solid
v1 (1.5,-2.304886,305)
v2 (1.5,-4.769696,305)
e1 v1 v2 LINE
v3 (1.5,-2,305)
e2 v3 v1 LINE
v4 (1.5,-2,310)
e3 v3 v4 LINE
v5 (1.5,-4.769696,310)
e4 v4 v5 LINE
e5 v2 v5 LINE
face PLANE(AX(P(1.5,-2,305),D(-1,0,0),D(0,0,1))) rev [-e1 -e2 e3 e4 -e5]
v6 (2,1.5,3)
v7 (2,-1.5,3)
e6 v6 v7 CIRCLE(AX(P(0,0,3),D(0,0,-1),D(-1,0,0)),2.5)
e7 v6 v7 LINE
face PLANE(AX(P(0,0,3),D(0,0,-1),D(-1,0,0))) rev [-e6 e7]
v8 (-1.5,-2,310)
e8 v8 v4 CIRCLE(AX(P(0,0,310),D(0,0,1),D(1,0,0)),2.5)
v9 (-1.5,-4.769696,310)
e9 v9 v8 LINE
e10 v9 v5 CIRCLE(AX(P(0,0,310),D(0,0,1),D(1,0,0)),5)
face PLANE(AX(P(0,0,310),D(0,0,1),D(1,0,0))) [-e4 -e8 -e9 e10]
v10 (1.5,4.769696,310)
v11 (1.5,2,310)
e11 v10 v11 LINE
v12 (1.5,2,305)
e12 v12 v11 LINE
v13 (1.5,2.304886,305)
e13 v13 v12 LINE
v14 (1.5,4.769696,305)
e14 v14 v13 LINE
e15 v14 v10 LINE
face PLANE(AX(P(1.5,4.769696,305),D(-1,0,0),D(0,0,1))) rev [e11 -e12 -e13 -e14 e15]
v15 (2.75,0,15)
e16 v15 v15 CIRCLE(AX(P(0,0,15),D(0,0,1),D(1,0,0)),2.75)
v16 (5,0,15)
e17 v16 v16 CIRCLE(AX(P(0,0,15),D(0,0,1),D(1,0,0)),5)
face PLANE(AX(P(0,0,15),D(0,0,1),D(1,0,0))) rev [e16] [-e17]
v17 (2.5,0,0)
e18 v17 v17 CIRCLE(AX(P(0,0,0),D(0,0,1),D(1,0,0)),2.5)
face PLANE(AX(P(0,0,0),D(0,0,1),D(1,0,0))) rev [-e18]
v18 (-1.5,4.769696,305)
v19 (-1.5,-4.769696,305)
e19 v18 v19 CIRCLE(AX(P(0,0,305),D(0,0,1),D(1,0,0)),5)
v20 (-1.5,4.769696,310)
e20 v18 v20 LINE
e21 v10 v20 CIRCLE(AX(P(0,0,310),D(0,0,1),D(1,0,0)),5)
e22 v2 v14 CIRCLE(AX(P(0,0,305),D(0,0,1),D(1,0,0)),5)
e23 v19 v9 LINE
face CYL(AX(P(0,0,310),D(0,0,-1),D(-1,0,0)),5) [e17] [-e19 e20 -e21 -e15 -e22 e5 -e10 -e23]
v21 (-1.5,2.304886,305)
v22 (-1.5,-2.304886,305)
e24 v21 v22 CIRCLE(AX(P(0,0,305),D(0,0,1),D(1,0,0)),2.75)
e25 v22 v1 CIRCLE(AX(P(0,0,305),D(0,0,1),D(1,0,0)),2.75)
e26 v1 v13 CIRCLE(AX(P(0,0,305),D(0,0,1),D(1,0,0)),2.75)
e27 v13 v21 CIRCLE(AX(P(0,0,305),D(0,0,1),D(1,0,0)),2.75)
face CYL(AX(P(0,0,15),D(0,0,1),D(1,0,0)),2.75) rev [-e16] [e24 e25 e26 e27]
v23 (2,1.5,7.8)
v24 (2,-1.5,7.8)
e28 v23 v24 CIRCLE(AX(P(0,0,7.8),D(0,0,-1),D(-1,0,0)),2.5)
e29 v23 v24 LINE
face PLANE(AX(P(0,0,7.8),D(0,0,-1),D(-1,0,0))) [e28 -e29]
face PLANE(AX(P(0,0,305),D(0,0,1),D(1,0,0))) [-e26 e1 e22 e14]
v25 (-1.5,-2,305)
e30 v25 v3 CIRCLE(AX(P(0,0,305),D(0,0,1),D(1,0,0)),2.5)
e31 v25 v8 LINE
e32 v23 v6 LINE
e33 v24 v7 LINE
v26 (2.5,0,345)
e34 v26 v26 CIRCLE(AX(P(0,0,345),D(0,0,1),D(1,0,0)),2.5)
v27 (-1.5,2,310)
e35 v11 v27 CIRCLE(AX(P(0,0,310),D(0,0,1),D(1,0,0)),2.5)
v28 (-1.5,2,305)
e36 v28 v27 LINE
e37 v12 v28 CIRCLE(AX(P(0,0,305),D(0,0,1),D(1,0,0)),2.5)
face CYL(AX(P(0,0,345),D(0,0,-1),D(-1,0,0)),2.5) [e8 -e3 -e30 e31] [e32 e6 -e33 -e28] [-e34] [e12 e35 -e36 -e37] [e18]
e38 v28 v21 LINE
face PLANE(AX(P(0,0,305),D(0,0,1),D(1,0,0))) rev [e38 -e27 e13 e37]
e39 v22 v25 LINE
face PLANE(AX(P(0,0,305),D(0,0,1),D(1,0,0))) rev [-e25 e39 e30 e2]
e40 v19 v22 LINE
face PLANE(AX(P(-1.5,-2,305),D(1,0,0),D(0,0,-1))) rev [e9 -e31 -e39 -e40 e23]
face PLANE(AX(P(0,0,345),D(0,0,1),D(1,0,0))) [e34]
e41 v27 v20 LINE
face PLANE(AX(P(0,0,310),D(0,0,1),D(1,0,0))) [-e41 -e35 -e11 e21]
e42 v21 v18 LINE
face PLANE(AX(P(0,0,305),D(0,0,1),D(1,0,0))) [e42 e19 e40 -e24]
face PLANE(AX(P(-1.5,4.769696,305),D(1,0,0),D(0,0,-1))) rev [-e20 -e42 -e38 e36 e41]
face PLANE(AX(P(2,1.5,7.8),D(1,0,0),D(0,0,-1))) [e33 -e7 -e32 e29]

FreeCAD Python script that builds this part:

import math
import FreeCAD as App
import Part
import Sketcher
Q = App.Units.Quantity

doc = App.newDocument("Part")
params = doc.addObject("Spreadsheet::Sheet", "Params")
for row, (alias, value) in enumerate([
    ("sketch1_diameter", "5 mm"),
    ("pad1_length", "345 mm"),
    ("sketch2_radius", "2.5 mm"),
    ("sketch2_height", "3 mm"),
    ("pocket1_length", "4.8 mm"),
    ("sketch3_diameter", "10 mm"),
    ("sketch3_diameter2", "5.5 mm"),
    ("pad2_length", "290 mm"),
    ("sketch4_diameter", "10 mm"),
    ("pad3_length", "5 mm"),
    ("sketch5_radius", "5 mm"),
    ("sketch5_radius2", "2.5 mm"),
    ("pocket2_length", "5 mm"),
], start=1):
    params.set(f"A{row}", alias)
    params.set(f"B{row}", "=" + value)
    params.setAlias(f"B{row}", alias)

body = doc.addObject("PartDesign::Body", "Body")

# Sketch on XY plane
sketch1 = body.newObject("Sketcher::SketchObject", "Sketch")
sketch1.AttachmentSupport = (doc.getObject("XY_Plane"), [""])
sketch1.MapMode = "FlatFace"
sketch1.addGeometry(Part.Circle(App.Vector(0, 0, 0), App.Vector(0, 0, 1), 2.5), False)
sketch1.addConstraint(Sketcher.Constraint("Coincident", 0, 3, -1, 1))
sketch1.addConstraint(Sketcher.Constraint("Diameter", 0, Q("5 mm")))
sketch1.setExpression("Constraints[1]", "Params.sketch1_diameter")
pad1 = body.newObject("PartDesign::Pad", "Pad")
pad1.Profile = sketch1
pad1.setExpression("Length", "Params.pad1_length")

# Sketch on XY plane
sketch2 = body.newObject("Sketcher::SketchObject", "Sketch001")
sketch2.AttachmentSupport = (doc.getObject("XY_Plane"), [""])
sketch2.MapMode = "FlatFace"
sketch2.AttachmentOffset = App.Placement(App.Vector(0, 0, 3), App.Rotation())
sketch2.addGeometry(Part.LineSegment(App.Vector(2, -1.5, 0), App.Vector(2, 1.5, 0)), False)
sketch2.addGeometry(Part.ArcOfCircle(Part.Circle(App.Vector(0, 0, 0), App.Vector(0, 0, 1), 2.5), math.radians(-37), math.radians(37)), False)
sketch2.addConstraint(Sketcher.Constraint("Coincident", 0, 1, 1, 1))
sketch2.addConstraint(Sketcher.Constraint("Coincident", 1, 2, 0, 2))
sketch2.addConstraint(Sketcher.Constraint("Vertical", 0))
sketch2.addConstraint(Sketcher.Constraint("Coincident", 1, 3, -1, 1))
sketch2.addConstraint(Sketcher.Constraint("Radius", 1, Q("2.5 mm")))
sketch2.addConstraint(Sketcher.Constraint("DistanceY", 0, 1, 0, 2, Q("3 mm")))
sketch2.setExpression("Constraints[4]", "Params.sketch2_radius")
sketch2.setExpression("Constraints[5]", "Params.sketch2_height")
pocket1 = body.newObject("PartDesign::Pocket", "Pocket")
pocket1.Profile = sketch2
pocket1.setExpression("Length", "Params.pocket1_length")
pocket1.Reversed = True
body2 = doc.addObject("PartDesign::Body", "Body001")

# Sketch on XY plane
sketch3 = body2.newObject("Sketcher::SketchObject", "Sketch002")
sketch3.AttachmentSupport = (doc.getObject("XY_Plane001"), [""])
sketch3.MapMode = "FlatFace"
sketch3.AttachmentOffset = App.Placement(App.Vector(0, 0, 305), App.Rotation())
sketch3.addGeometry(Part.Circle(App.Vector(0, 0, 0), App.Vector(0, 0, 1), 5), False)
sketch3.addGeometry(Part.Circle(App.Vector(0, 0, 0), App.Vector(0, 0, 1), 2.8), False)
sketch3.addConstraint(Sketcher.Constraint("Coincident", 0, 3, -1, 1))
sketch3.addConstraint(Sketcher.Constraint("Coincident", 1, 3, -1, 1))
sketch3.addConstraint(Sketcher.Constraint("Diameter", 0, Q("10 mm")))
sketch3.addConstraint(Sketcher.Constraint("Diameter", 1, Q("5.5 mm")))
sketch3.setExpression("Constraints[2]", "Params.sketch3_diameter")
sketch3.setExpression("Constraints[3]", "Params.sketch3_diameter2")
pad2 = body2.newObject("PartDesign::Pad", "Pad001")
pad2.Profile = sketch3
pad2.setExpression("Length", "Params.pad2_length")
pad2.Reversed = True
body.AllowCompound = True
doc.recompute()

boolean = body.newObject("PartDesign::Boolean", "Boolean")
boolean.Type = "Fuse"
boolean.addObjects([body2])

# Sketch on XY plane
sketch4 = body.newObject("Sketcher::SketchObject", "Sketch003")
sketch4.AttachmentSupport = (doc.getObject("XY_Plane"), [""])
sketch4.MapMode = "FlatFace"
sketch4.AttachmentOffset = App.Placement(App.Vector(0, 0, 305), App.Rotation())
sketch4.addGeometry(Part.Circle(App.Vector(0, 0, 0), App.Vector(0, 0, 1), 5), False)
sketch4.addConstraint(Sketcher.Constraint("Coincident", 0, 3, -1, 1))
sketch4.addConstraint(Sketcher.Constraint("Diameter", 0, Q("10 mm")))
sketch4.setExpression("Constraints[1]", "Params.sketch4_diameter")
pad3 = body.newObject("PartDesign::Pad", "Pad002")
pad3.Profile = sketch4
pad3.setExpression("Length", "Params.pad3_length")

# Sketch on XY plane
sketch5 = body.newObject("Sketcher::SketchObject", "Sketch004")
sketch5.AttachmentSupport = (doc.getObject("XY_Plane"), [""])
sketch5.MapMode = "FlatFace"
sketch5.AttachmentOffset = App.Placement(App.Vector(0, 0, 305), App.Rotation())
sketch5.addGeometry(Part.LineSegment(App.Vector(-1.5, 2, 0), App.Vector(-1.5, 4.8, 0)), False)
sketch5.addGeometry(Part.ArcOfCircle(Part.Circle(App.Vector(0, 0, 0), App.Vector(0, 0, 1), 5), math.radians(107), math.radians(253)), False)
sketch5.addGeometry(Part.LineSegment(App.Vector(-1.5, -4.8, 0), App.Vector(-1.5, -2, 0)), False)
sketch5.addGeometry(Part.ArcOfCircle(Part.Circle(App.Vector(0, 0, 0), App.Vector(0, 0, 1), 2.5), math.radians(127), math.radians(233)), False)
sketch5.addGeometry(Part.LineSegment(App.Vector(1.5, 4.8, 0), App.Vector(1.5, 2, 0)), False)
sketch5.addGeometry(Part.ArcOfCircle(Part.Circle(App.Vector(0, 0, 0), App.Vector(0, 0, 1), 2.5), math.radians(-53), math.radians(53)), False)
sketch5.addGeometry(Part.LineSegment(App.Vector(1.5, -2, 0), App.Vector(1.5, -4.8, 0)), False)
sketch5.addGeometry(Part.ArcOfCircle(Part.Circle(App.Vector(0, 0, 0), App.Vector(0, 0, 1), 5), math.radians(-73), math.radians(73)), False)
sketch5.addConstraint(Sketcher.Constraint("Coincident", 0, 2, 1, 1))
sketch5.addConstraint(Sketcher.Constraint("Coincident", 1, 2, 2, 1))
sketch5.addConstraint(Sketcher.Constraint("Coincident", 2, 2, 3, 2))
sketch5.addConstraint(Sketcher.Constraint("Coincident", 3, 1, 0, 1))
sketch5.addConstraint(Sketcher.Constraint("Coincident", 4, 2, 5, 2))
sketch5.addConstraint(Sketcher.Constraint("Coincident", 5, 1, 6, 1))
sketch5.addConstraint(Sketcher.Constraint("Coincident", 6, 2, 7, 1))
sketch5.addConstraint(Sketcher.Constraint("Coincident", 7, 2, 4, 1))
sketch5.addConstraint(Sketcher.Constraint("Vertical", 0))
sketch5.addConstraint(Sketcher.Constraint("Vertical", 2))
sketch5.addConstraint(Sketcher.Constraint("Vertical", 4))
sketch5.addConstraint(Sketcher.Constraint("Vertical", 6))
sketch5.addConstraint(Sketcher.Constraint("Coincident", 1, 3, -1, 1))
sketch5.addConstraint(Sketcher.Constraint("Coincident", 3, 3, -1, 1))
sketch5.addConstraint(Sketcher.Constraint("Coincident", 5, 3, -1, 1))
sketch5.addConstraint(Sketcher.Constraint("Coincident", 7, 3, -1, 1))
sketch5.addConstraint(Sketcher.Constraint("Equal", 3, 5))
sketch5.addConstraint(Sketcher.Constraint("Equal", 1, 7))
sketch5.addConstraint(Sketcher.Constraint("Horizontal", 3, 1, 4, 2))
sketch5.addConstraint(Sketcher.Constraint("Horizontal", 2, 2, 5, 1))
sketch5.addConstraint(Sketcher.Constraint("Vertical", 0, 2, 1, 2))
sketch5.addConstraint(Sketcher.Constraint("Radius", 1, Q("5 mm")))
sketch5.addConstraint(Sketcher.Constraint("Radius", 3, Q("2.5 mm")))
sketch5.addConstraint(Sketcher.Constraint("DistanceY", 2, 2, -1, 1, Q("2 mm")))
sketch5.setExpression("Constraints[21]", "Params.sketch5_radius")
sketch5.setExpression("Constraints[22]", "Params.sketch5_radius2")
pocket2 = body.newObject("PartDesign::Pocket", "Pocket001")
pocket2.Profile = sketch5
pocket2.setExpression("Length", "Params.pocket2_length")
pocket2.Reversed = True

doc.recompute()
